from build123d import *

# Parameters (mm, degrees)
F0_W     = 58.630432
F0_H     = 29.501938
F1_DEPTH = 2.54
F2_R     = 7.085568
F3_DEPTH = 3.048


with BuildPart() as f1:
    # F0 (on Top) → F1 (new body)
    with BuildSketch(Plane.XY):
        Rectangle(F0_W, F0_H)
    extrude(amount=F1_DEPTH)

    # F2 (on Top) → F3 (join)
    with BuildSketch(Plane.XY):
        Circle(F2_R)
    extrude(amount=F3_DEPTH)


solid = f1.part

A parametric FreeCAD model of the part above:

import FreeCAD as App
import Part
import Sketcher
Q = App.Units.Quantity

doc = App.newDocument("Part")
body = doc.addObject("PartDesign::Body", "Body")

# Sketch on XY plane
sketch1 = body.newObject("Sketcher::SketchObject", "Sketch")
sketch1.AttachmentSupport = (doc.getObject("XY_Plane"), [""])
sketch1.MapMode = "FlatFace"
sketch1.addGeometry([
    Part.LineSegment(App.Vector(-29, 15, 0), App.Vector(-29, -15, 0)),
    Part.LineSegment(App.Vector(-29, -15, 0), App.Vector(29, -15, 0)),
    Part.LineSegment(App.Vector(29, -15, 0), App.Vector(29, 15, 0)),
    Part.LineSegment(App.Vector(29, 15, 0), App.Vector(-29, 15, 0)),
], False)
sketch1.addConstraint([
    Sketcher.Constraint("Coincident", 0, 2, 1, 1),
    Sketcher.Constraint("Coincident", 1, 2, 2, 1),
    Sketcher.Constraint("Coincident", 2, 2, 3, 1),
    Sketcher.Constraint("Coincident", 3, 2, 0, 1),
    Sketcher.Constraint("Vertical", 0),
    Sketcher.Constraint("Horizontal", 1),
    Sketcher.Constraint("Vertical", 2),
    Sketcher.Constraint("Horizontal", 3),
    Sketcher.Constraint("Symmetric", 0, 2, 2, 2, -1, 1),
    Sketcher.Constraint("DistanceX", 1, 1, 1, 2, Q("58.630432 mm")),
    Sketcher.Constraint("DistanceY", 0, 2, 0, 1, Q("29.501938 mm")),
])
pad1 = body.newObject("PartDesign::Pad", "Pad")
pad1.Profile = sketch1
pad1.Length = Q("0.1 in")

# Sketch on XY plane
sketch2 = body.newObject("Sketcher::SketchObject", "Sketch001")
sketch2.AttachmentSupport = (doc.getObject("XY_Plane"), [""])
sketch2.MapMode = "FlatFace"
sketch2.addGeometry(Part.Circle(App.Vector(0, 0, 0), App.Vector(0, 0, 1), 7), False)
sketch2.addConstraint([
    Sketcher.Constraint("Coincident", 0, 3, -1, 1),
    Sketcher.Constraint("Diameter", 0, Q("14.171136 mm")),
])
pad2 = body.newObject("PartDesign::Pad", "Pad001")
pad2.Profile = sketch2
pad2.Length = Q("0.12 in")

doc.recompute()
